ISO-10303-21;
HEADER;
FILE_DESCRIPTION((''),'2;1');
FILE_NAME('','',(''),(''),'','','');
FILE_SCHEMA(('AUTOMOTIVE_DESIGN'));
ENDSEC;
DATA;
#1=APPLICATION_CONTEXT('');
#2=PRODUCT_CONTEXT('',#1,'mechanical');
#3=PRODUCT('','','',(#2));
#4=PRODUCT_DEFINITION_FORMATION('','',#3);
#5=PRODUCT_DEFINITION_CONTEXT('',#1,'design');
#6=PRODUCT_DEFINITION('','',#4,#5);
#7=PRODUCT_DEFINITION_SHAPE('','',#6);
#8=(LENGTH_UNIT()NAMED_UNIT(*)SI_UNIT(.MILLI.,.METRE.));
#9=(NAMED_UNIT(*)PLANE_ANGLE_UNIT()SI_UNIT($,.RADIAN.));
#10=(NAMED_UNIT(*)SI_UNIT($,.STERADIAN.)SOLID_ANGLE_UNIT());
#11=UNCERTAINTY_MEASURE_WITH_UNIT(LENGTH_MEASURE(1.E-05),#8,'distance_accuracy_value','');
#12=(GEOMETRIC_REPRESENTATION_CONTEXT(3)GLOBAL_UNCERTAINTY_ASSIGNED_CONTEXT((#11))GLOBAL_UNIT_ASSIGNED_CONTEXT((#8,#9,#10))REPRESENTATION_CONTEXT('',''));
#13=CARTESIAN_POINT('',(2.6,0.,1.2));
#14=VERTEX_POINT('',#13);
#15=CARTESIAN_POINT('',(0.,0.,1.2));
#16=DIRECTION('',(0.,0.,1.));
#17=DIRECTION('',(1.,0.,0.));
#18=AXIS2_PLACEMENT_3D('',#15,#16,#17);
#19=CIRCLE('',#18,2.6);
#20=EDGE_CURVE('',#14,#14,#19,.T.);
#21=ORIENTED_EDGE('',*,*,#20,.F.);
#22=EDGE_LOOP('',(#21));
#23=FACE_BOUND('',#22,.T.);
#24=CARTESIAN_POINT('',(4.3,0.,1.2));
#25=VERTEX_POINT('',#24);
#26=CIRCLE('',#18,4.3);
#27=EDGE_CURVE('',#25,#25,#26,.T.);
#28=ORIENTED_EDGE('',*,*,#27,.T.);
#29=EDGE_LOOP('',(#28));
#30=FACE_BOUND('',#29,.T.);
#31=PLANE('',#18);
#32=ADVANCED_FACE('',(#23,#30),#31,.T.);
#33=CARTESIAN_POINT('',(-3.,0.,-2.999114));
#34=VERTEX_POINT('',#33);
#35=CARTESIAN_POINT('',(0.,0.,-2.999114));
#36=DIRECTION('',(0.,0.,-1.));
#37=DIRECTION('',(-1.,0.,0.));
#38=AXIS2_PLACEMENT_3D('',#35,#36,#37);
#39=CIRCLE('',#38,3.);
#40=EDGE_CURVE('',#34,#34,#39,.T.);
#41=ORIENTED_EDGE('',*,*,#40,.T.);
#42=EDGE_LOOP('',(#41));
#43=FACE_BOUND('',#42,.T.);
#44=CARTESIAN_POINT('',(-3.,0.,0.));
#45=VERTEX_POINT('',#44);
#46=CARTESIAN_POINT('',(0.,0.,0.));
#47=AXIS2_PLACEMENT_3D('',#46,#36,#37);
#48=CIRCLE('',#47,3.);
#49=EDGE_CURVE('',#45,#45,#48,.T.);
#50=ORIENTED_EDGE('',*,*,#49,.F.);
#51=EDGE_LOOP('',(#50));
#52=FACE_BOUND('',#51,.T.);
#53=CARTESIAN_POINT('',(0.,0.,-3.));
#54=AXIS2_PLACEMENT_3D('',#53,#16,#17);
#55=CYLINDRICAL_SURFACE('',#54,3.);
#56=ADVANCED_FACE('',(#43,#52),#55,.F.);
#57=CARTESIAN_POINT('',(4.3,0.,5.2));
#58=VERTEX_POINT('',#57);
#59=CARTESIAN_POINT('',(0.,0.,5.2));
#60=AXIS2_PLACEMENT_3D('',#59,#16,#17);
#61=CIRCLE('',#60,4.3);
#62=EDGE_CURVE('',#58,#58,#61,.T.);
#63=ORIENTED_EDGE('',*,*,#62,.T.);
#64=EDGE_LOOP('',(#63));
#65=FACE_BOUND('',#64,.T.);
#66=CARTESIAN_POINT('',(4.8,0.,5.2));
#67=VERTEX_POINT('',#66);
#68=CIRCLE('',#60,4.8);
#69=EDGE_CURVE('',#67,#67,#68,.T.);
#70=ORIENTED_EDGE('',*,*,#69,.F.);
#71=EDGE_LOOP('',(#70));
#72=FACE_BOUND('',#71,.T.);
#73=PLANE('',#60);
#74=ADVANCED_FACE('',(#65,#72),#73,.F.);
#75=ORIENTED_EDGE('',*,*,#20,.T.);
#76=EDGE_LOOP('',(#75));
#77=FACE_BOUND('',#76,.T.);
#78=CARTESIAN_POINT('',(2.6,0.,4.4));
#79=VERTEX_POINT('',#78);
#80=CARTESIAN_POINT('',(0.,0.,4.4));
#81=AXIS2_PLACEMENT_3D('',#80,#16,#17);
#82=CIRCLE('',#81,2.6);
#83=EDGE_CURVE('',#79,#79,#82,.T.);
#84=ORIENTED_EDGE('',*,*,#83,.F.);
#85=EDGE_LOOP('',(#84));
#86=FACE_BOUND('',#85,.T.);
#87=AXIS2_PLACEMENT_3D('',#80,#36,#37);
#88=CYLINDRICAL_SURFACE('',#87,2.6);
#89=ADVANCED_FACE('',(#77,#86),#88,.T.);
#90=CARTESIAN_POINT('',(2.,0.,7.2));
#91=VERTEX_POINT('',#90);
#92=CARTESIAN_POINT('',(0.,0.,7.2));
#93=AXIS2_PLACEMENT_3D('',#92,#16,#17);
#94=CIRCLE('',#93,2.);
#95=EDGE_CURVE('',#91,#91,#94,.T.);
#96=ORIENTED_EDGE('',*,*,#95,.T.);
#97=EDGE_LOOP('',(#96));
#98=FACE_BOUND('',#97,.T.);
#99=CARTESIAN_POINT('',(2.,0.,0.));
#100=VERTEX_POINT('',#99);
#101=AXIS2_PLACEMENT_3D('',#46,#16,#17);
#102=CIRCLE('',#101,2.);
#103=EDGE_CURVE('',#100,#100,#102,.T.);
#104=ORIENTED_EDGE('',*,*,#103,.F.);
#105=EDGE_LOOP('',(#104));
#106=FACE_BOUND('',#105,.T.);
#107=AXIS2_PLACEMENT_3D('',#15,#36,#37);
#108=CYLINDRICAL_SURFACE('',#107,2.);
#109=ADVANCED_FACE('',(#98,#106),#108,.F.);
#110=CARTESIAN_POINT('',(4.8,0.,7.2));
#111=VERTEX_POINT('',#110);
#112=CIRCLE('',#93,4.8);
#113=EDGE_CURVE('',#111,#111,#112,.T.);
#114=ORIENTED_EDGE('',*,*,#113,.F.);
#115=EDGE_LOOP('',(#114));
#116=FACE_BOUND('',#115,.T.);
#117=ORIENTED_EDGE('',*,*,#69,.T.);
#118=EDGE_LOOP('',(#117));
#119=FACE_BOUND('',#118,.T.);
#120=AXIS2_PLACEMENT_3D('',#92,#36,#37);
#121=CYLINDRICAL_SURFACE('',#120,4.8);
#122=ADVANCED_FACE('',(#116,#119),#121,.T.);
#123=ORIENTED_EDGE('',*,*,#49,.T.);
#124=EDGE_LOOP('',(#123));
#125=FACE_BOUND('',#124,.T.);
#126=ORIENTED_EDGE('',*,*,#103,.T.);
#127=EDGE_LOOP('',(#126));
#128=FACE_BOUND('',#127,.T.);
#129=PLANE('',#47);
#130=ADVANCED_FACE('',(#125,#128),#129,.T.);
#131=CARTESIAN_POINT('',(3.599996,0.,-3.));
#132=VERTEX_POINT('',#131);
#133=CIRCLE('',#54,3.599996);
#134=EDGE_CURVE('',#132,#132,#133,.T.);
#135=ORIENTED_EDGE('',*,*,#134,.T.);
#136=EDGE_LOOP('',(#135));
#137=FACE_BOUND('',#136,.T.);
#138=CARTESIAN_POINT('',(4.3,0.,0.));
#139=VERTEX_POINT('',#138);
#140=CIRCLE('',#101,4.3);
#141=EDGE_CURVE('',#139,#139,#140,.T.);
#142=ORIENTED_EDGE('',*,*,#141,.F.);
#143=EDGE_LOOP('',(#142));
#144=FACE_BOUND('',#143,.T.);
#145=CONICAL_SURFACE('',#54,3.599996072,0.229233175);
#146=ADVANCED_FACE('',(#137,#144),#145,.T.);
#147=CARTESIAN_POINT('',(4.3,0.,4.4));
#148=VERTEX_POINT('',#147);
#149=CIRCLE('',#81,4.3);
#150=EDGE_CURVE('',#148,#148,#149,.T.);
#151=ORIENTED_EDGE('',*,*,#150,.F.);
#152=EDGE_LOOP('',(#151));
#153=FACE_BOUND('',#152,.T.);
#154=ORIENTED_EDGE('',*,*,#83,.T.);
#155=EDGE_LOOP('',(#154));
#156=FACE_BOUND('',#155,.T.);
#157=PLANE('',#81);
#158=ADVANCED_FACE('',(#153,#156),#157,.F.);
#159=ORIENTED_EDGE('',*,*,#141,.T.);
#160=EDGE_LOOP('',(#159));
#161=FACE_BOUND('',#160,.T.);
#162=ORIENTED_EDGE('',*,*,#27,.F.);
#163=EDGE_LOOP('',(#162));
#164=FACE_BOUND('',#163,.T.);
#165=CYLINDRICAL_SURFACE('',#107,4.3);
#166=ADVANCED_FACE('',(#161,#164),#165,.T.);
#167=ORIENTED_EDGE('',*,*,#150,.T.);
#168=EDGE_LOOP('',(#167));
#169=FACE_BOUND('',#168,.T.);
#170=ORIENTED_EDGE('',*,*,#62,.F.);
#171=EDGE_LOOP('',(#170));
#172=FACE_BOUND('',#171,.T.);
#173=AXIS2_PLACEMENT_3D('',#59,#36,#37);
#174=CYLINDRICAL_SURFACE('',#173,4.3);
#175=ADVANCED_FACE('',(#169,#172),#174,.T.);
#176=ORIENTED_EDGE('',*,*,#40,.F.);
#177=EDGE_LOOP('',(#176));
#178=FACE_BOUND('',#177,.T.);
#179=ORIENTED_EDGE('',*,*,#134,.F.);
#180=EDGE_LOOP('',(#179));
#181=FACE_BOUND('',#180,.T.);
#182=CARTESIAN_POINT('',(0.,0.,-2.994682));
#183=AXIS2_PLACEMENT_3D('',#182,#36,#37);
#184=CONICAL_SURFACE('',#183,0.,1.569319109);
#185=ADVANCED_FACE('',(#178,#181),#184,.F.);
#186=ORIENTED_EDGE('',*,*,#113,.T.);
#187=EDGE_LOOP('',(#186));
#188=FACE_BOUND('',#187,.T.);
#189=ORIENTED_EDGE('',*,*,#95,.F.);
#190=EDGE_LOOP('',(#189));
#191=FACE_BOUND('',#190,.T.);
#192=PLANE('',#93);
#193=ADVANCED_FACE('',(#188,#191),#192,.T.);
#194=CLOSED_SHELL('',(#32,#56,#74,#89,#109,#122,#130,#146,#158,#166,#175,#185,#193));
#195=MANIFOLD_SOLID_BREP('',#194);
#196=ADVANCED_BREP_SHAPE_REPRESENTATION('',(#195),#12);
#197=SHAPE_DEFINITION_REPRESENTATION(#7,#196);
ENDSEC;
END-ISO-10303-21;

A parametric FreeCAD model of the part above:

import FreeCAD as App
import Part
import Sketcher


def add_polygon(sketch, points):
    """Adds a closed chain of lines whose ends are joined by coincident constraints."""
    first, n = sketch.GeometryCount, len(points)
    for a, b in zip(points, points[1:] + points[:1]):
        sketch.addGeometry(Part.LineSegment(App.Vector(*a, 0), App.Vector(*b, 0)), False)
    for i in range(n):
        sketch.addConstraint(Sketcher.Constraint("Coincident", first + i, 2, first + (i + 1) % n, 1))

doc = App.newDocument("Part")
body = doc.addObject("PartDesign::Body", "Body")

# Sketch on XY plane
sketch1 = body.newObject("Sketcher::SketchObject", "Sketch")
sketch1.AttachmentSupport = (doc.getObject("XY_Plane"), [""])
sketch1.MapMode = "FlatFace"
sketch1.addGeometry([
    Part.Circle(App.Vector(0, 0, 0), App.Vector(0, 0, 1), 4.3),
    Part.Circle(App.Vector(0, 0, 0), App.Vector(0, 0, 1), 2),
], False)
sketch1.addConstraint([
    Sketcher.Constraint("Coincident", 0, 3, -1, 1),
    Sketcher.Constraint("Coincident", 1, 3, -1, 1),
    Sketcher.Constraint("Diameter", 1, 4.0),
    Sketcher.Constraint("Diameter", 0, 8.6),
])
pad1 = body.newObject("PartDesign::Pad", "Pad")
pad1.Profile = sketch1
pad1.Length = 1.2

# Sketch on XY plane
sketch2 = body.newObject("Sketcher::SketchObject", "Sketch001")
sketch2.AttachmentSupport = (doc.getObject("XY_Plane"), [""])
sketch2.MapMode = "FlatFace"
sketch2.AttachmentOffset = App.Placement(App.Vector(0, 0, 1.2), App.Rotation())
sketch2.addGeometry([
    Part.Circle(App.Vector(0, 0, 0), App.Vector(0, 0, 1), 2.6),
    Part.Circle(App.Vector(0, 0, 0), App.Vector(0, 0, 1), 2),
], False)
sketch2.addConstraint([
    Sketcher.Constraint("Coincident", 0, 3, -1, 1),
    Sketcher.Constraint("Coincident", 1, 3, -1, 1),
    Sketcher.Constraint("Diameter", 1, 4.0),
    Sketcher.Constraint("Diameter", 0, 5.2),
])
pad2 = body.newObject("PartDesign::Pad", "Pad001")
pad2.Profile = sketch2
pad2.Length = 3.2

# Sketch on XY plane
sketch3 = body.newObject("Sketcher::SketchObject", "Sketch002")
sketch3.AttachmentSupport = (doc.getObject("XY_Plane"), [""])
sketch3.MapMode = "FlatFace"
sketch3.AttachmentOffset = App.Placement(App.Vector(0, 0, 4.4), App.Rotation())
sketch3.addGeometry([
    Part.Circle(App.Vector(0, 0, 0), App.Vector(0, 0, 1), 4.3),
    Part.Circle(App.Vector(0, 0, 0), App.Vector(0, 0, 1), 2),
], False)
sketch3.addConstraint([
    Sketcher.Constraint("Coincident", 0, 3, -1, 1),
    Sketcher.Constraint("Coincident", 1, 3, -1, 1),
    Sketcher.Constraint("Diameter", 1, 4.0),
    Sketcher.Constraint("Diameter", 0, 8.6),
])
pad3 = body.newObject("PartDesign::Pad", "Pad002")
pad3.Profile = sketch3
pad3.Length = 0.8

# Sketch on XY plane
sketch4 = body.newObject("Sketcher::SketchObject", "Sketch003")
sketch4.AttachmentSupport = (doc.getObject("XY_Plane"), [""])
sketch4.MapMode = "FlatFace"
sketch4.AttachmentOffset = App.Placement(App.Vector(0, 0, 5.2), App.Rotation())
sketch4.addGeometry([
    Part.Circle(App.Vector(0, 0, 0), App.Vector(0, 0, 1), 4.8),
    Part.Circle(App.Vector(0, 0, 0), App.Vector(0, 0, 1), 2),
], False)
sketch4.addConstraint([
    Sketcher.Constraint("Coincident", 0, 3, -1, 1),
    Sketcher.Constraint("Coincident", 1, 3, -1, 1),
    Sketcher.Constraint("Diameter", 1, 4.0),
    Sketcher.Constraint("Diameter", 0, 9.6),
])
pad4 = body.newObject("PartDesign::Pad", "Pad003")
pad4.Profile = sketch4
pad4.Length = 2

# Sketch on XZ plane
sketch5 = body.newObject("Sketcher::SketchObject", "Sketch004")
sketch5.AttachmentSupport = (doc.getObject("XZ_Plane"), [""])
sketch5.MapMode = "FlatFace"
add_polygon(sketch5, [(-3.6, -3), (-4.3, 0), (0, 0), (0, -3)])  # lines 0-3
sketch5.addConstraint([
    Sketcher.Constraint("Horizontal", 1),
    Sketcher.Constraint("Vertical", 2),
    Sketcher.Constraint("Coincident", 1, 2, -1, 1),
    Sketcher.Constraint("DistanceX", 1, 1, 1, 2, 4.3),
    Sketcher.Constraint("DistanceY", 3, 2, -1, 1, 3.0),
    Sketcher.Constraint("Distance", 3, 3.6),
    Sketcher.Constraint("DistanceY", 2, 2, 2, 1, 2.994682),
])
revolution = body.newObject("PartDesign::Revolution", "Revolution")
revolution.Profile = sketch5
revolution.ReferenceAxis = (sketch5, ["V_Axis"])
revolution.Angle = 360

# Sketch on XY plane
sketch6 = body.newObject("Sketcher::SketchObject", "Sketch005")
sketch6.AttachmentSupport = (doc.getObject("XY_Plane"), [""])
sketch6.MapMode = "FlatFace"
sketch6.addGeometry(Part.Circle(App.Vector(0, 0, 0), App.Vector(0, 0, 1), 3), False)
sketch6.addConstraint([
    Sketcher.Constraint("Coincident", 0, 3, -1, 1),
    Sketcher.Constraint("Diameter", 0, 6.0),
])
pocket1 = body.newObject("PartDesign::Pocket", "Pocket")
pocket1.Profile = sketch6
pocket1.Length = 3

doc.recompute()
